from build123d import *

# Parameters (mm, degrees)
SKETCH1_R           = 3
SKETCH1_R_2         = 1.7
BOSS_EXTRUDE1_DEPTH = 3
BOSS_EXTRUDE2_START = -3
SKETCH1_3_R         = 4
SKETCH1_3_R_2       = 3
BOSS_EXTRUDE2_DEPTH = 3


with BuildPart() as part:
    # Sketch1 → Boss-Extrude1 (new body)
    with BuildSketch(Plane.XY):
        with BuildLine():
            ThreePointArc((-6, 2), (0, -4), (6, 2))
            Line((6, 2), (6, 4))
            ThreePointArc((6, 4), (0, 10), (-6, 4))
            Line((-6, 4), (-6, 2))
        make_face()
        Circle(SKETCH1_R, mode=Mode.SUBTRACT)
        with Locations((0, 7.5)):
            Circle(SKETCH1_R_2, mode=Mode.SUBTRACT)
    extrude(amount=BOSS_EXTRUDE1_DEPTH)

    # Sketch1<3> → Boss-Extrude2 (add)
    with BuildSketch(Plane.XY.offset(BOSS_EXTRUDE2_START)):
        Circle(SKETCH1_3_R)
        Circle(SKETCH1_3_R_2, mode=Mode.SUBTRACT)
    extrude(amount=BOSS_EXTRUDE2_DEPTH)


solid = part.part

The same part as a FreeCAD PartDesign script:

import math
import FreeCAD as App
import Part
import Sketcher

V = App.Vector

doc = App.newDocument("Part")
body = doc.addObject("PartDesign::Body", "Body")

# Sketch on XY plane
sketch1 = body.newObject("Sketcher::SketchObject", "Sketch")
sketch1.AttachmentSupport = (doc.getObject("XY_Plane"), [""])
sketch1.MapMode = "FlatFace"
sketch1.addGeometry(Part.ArcOfCircle(Part.Circle(V(0, 2, 0), V(0, 0, 1), 6), math.radians(180), math.radians(360)), False)
sketch1.addGeometry(Part.LineSegment(V(6, 2, 0), V(6, 4, 0)), False)
sketch1.addGeometry(Part.ArcOfCircle(Part.Circle(V(0, 4, 0), V(0, 0, 1), 6), math.radians(0), math.radians(180)), False)
sketch1.addGeometry(Part.LineSegment(V(-6, 4, 0), V(-6, 2, 0)), False)
sketch1.addGeometry(Part.Circle(V(0, 0, 0), V(0, 0, 1), 3), False)
sketch1.addGeometry(Part.Circle(V(0, 7.5, 0), V(0, 0, 1), 1.7), False)
sketch1.addConstraint(Sketcher.Constraint("Tangent", 0, 2, 1, 1))
sketch1.addConstraint(Sketcher.Constraint("Tangent", 1, 2, 2, 1))
sketch1.addConstraint(Sketcher.Constraint("Tangent", 2, 2, 3, 1))
sketch1.addConstraint(Sketcher.Constraint("Tangent", 3, 2, 0, 1))
sketch1.addConstraint(Sketcher.Constraint("Vertical", 1))
sketch1.addConstraint(Sketcher.Constraint("Vertical", 3))
sketch1.addConstraint(Sketcher.Constraint("Coincident", 4, 3, -1, 1))
sketch1.addConstraint(Sketcher.Constraint("PointOnObject", 0, 3, -2))
sketch1.addConstraint(Sketcher.Constraint("PointOnObject", 5, 3, -2))
sketch1.addConstraint(Sketcher.Constraint("Diameter", 4, 6.0))
sketch1.addConstraint(Sketcher.Constraint("Radius", 0, 6.0))
sketch1.addConstraint(Sketcher.Constraint("Diameter", 5, 3.4))
sketch1.addConstraint(Sketcher.Constraint("DistanceY", 1, 1, 1, 2, 2.0))
sketch1.addConstraint(Sketcher.Constraint("DistanceY", -1, 1, 0, 3, 2.0))
sketch1.addConstraint(Sketcher.Constraint("DistanceY", -1, 1, 5, 3, 7.5))
pad1 = body.newObject("PartDesign::Pad", "Pad")
pad1.Profile = sketch1
pad1.Length = 3

# Sketch on XY plane
sketch2 = body.newObject("Sketcher::SketchObject", "Sketch001")
sketch2.AttachmentSupport = (doc.getObject("XY_Plane"), [""])
sketch2.MapMode = "FlatFace"
sketch2.AttachmentOffset = App.Placement(V(0, 0, -3), App.Rotation())
sketch2.addGeometry(Part.Circle(V(0, 0, 0), V(0, 0, 1), 4), False)
sketch2.addGeometry(Part.Circle(V(0, 0, 0), V(0, 0, 1), 3), False)
sketch2.addConstraint(Sketcher.Constraint("Coincident", 0, 3, -1, 1))
sketch2.addConstraint(Sketcher.Constraint("Coincident", 1, 3, -1, 1))
sketch2.addConstraint(Sketcher.Constraint("Diameter", 0, 8.0))
sketch2.addConstraint(Sketcher.Constraint("Diameter", 1, 6.0))
pad2 = body.newObject("PartDesign::Pad", "Pad001")
pad2.Profile = sketch2
pad2.Length = 3

doc.recompute()
